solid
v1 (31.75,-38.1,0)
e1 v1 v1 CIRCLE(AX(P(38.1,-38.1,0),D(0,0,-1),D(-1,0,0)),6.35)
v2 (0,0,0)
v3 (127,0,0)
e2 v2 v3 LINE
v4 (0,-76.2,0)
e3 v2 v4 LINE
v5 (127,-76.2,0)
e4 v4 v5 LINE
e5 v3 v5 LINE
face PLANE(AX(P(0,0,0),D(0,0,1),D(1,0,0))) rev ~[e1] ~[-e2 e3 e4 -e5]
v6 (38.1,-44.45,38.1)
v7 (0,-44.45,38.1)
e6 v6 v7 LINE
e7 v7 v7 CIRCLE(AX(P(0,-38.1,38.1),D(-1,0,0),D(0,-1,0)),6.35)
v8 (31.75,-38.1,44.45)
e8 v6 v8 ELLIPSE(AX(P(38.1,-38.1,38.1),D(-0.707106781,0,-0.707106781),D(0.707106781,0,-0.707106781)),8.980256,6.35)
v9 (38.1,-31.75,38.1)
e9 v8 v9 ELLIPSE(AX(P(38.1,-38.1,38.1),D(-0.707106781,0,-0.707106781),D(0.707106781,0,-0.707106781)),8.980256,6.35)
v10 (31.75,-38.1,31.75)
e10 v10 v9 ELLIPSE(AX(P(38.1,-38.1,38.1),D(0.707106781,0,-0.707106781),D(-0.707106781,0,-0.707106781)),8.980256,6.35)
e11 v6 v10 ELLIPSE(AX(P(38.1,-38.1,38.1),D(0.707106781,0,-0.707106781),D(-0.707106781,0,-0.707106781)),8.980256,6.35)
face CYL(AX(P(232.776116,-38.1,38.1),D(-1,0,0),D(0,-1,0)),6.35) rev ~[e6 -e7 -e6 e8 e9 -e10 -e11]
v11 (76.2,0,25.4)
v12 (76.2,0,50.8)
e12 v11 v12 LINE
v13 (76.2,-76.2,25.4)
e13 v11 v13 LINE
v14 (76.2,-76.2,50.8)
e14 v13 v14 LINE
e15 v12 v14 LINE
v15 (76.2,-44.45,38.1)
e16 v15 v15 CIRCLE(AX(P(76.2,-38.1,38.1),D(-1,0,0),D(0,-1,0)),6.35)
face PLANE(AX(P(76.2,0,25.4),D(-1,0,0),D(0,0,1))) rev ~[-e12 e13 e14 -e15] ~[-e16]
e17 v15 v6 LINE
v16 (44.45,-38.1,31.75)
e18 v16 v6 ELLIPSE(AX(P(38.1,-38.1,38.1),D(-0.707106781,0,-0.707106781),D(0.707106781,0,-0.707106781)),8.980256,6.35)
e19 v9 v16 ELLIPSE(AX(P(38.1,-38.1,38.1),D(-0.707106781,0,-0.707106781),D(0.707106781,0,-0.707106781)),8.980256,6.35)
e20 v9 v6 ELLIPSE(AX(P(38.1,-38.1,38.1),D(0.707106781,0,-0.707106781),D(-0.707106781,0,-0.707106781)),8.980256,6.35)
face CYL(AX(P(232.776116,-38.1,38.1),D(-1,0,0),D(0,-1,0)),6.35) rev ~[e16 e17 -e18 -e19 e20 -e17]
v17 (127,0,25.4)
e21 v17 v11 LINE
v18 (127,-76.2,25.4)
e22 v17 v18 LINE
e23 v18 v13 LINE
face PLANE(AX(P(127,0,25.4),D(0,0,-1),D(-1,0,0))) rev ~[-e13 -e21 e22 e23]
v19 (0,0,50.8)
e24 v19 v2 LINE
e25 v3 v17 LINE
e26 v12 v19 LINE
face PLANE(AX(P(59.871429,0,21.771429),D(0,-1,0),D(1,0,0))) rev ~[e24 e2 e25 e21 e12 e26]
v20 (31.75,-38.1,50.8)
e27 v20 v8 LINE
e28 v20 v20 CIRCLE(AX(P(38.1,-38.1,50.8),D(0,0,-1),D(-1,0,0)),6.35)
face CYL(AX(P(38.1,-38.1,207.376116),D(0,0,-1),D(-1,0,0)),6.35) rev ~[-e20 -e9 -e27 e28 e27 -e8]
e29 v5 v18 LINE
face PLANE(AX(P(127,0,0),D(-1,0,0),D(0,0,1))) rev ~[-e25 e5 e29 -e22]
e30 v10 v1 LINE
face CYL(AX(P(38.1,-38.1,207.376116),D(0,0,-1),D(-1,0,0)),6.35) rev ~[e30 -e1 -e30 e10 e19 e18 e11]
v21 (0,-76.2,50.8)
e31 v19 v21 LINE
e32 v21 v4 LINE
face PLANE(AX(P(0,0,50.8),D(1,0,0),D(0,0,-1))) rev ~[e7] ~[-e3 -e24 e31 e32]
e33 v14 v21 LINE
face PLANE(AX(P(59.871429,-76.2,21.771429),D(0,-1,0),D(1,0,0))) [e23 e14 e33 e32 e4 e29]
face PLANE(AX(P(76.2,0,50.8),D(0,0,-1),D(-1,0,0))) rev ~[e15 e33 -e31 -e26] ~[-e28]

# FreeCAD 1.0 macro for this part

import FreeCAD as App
import Part
import Sketcher
Q = App.Units.Quantity


def add_polygon(sketch, points):
    """Adds a closed chain of lines whose ends are joined by coincident constraints."""
    first, n = sketch.GeometryCount, len(points)
    for a, b in zip(points, points[1:] + points[:1]):
        sketch.addGeometry(Part.LineSegment(App.Vector(*a, 0), App.Vector(*b, 0)), False)
    for i in range(n):
        sketch.addConstraint(Sketcher.Constraint("Coincident", first + i, 2, first + (i + 1) % n, 1))

doc = App.newDocument("Part")
params = doc.addObject("Spreadsheet::Sheet", "Params")
for row, (alias, value) in enumerate([
    ("sketch1_width", "5 in"),
    ("sketch1_width2", "2 in"),
    ("pad1_length", "3 in"),
    ("sketch2_diameter", "0.5 in"),
    ("hole_diameter", "0.5 in"),
    ("sketch3_diameter", "0.5 in"),
    ("hole2_diameter", "0.5 in"),
], start=1):
    params.set(f"A{row}", alias)
    params.set(f"B{row}", "=" + value)
    params.setAlias(f"B{row}", alias)

body = doc.addObject("PartDesign::Body", "Body")

# Sketch on XZ plane
sketch1 = doc.addObject("Sketcher::SketchObject", "Sketch")
body.addObject(sketch1)
sketch1.AttachmentSupport = (doc.XZ_Plane, [""])
sketch1.MapMode = "FlatFace"
add_polygon(sketch1, [(0, 51), (0, 0), (127, 0), (127, 25), (76, 25), (76, 51)])  # lines 0-5
sketch1.addConstraint(Sketcher.Constraint("Vertical", 0))
sketch1.addConstraint(Sketcher.Constraint("Horizontal", 1))
sketch1.addConstraint(Sketcher.Constraint("Vertical", 2))
sketch1.addConstraint(Sketcher.Constraint("Horizontal", 3))
sketch1.addConstraint(Sketcher.Constraint("Vertical", 4))
sketch1.addConstraint(Sketcher.Constraint("Horizontal", 5))
sketch1.addConstraint(Sketcher.Constraint("Coincident", 0, 2, -1, 1))
sketch1.addConstraint(Sketcher.Constraint("Equal", 3, 0))
sketch1.addConstraint(Sketcher.Constraint("Equal", 2, 4))
sketch1.addConstraint(Sketcher.Constraint("DistanceX", 1, 1, 1, 2, Q("5 in")))
sketch1.addConstraint(Sketcher.Constraint("DistanceX", 3, 2, 3, 1, Q("2 in")))
sketch1.setExpression("Constraints[15]", "Params.sketch1_width")
sketch1.setExpression("Constraints[16]", "Params.sketch1_width2")
pad1 = doc.addObject("PartDesign::Pad", "Pad")
body.addObject(pad1)
pad1.Profile = sketch1
pad1.setExpression("Length", "Params.pad1_length")

# Sketch on XY plane
sketch2 = doc.addObject("Sketcher::SketchObject", "Sketch001")
body.addObject(sketch2)
sketch2.AttachmentSupport = (doc.XY_Plane, [""])
sketch2.MapMode = "FlatFace"
sketch2.AttachmentOffset = App.Placement(App.Vector(0, 0, 2 * 25.4), App.Rotation())
sketch2.addGeometry(Part.Circle(App.Vector(38, -38, 0), App.Vector(0, 0, 1), 6), False)
sketch2.addConstraint(Sketcher.Constraint("Diameter", 0, Q("0.5 in")))
sketch2.addConstraint(Sketcher.Constraint("DistanceX", -1, 1, 0, 3, Q("1.5 in")))
sketch2.addConstraint(Sketcher.Constraint("DistanceY", 0, 3, -1, 1, Q("1.5 in")))
sketch2.setExpression("Constraints[0]", "Params.sketch2_diameter")
doc.recompute()
hole = doc.addObject("PartDesign::Hole", "Hole")
body.addObject(hole)
hole.Profile = sketch2
hole.ThreadType = "None"
hole.setExpression("Diameter", "Params.hole_diameter")
hole.DepthType = "ThroughAll"

# Sketch on YZ plane
sketch3 = doc.addObject("Sketcher::SketchObject", "Sketch002")
body.addObject(sketch3)
sketch3.AttachmentSupport = (doc.YZ_Plane, [""])
sketch3.MapMode = "FlatFace"
sketch3.AttachmentOffset = App.Placement(App.Vector(0, 0, 3 * 25.4), App.Rotation())
sketch3.addGeometry(Part.Circle(App.Vector(-38, 38, 0), App.Vector(0, 0, 1), 6), False)
sketch3.addConstraint(Sketcher.Constraint("Diameter", 0, Q("0.5 in")))
sketch3.addConstraint(Sketcher.Constraint("DistanceX", 0, 3, -1, 1, Q("1.5 in")))
sketch3.addConstraint(Sketcher.Constraint("DistanceY", -1, 1, 0, 3, Q("1.5 in")))
sketch3.setExpression("Constraints[0]", "Params.sketch3_diameter")
doc.recompute()
hole2 = doc.addObject("PartDesign::Hole", "Hole001")
body.addObject(hole2)
hole2.Profile = sketch3
hole2.ThreadType = "None"
hole2.setExpression("Diameter", "Params.hole2_diameter")
hole2.DepthType = "ThroughAll"

doc.recompute()
